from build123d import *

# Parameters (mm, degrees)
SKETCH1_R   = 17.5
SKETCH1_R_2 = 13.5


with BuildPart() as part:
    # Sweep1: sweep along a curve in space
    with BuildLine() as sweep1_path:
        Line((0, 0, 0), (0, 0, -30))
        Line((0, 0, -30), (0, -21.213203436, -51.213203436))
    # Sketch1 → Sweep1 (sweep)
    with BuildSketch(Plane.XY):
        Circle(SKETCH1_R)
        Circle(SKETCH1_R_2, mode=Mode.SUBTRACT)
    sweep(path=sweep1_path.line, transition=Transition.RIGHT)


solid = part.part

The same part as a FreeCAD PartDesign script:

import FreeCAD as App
import Part
import Sketcher

V = App.Vector
Q = App.Units.Quantity

doc = App.newDocument("Part")
body = doc.addObject("PartDesign::Body", "Body")

sketch1 = body.newObject("Sketcher::SketchObject", "Sketch")
sketch1.AttachmentSupport = (doc.getObject("XY_Plane"), [""])
sketch1.MapMode = "FlatFace"
sketch1.addGeometry([
    Part.Circle(V(0, 0, 0), V(0, 0, 1), 18),
    Part.Circle(V(0, 0, 0), V(0, 0, 1), 14),
], False)
sketch1.addConstraint([
    Sketcher.Constraint("Coincident", 0, 3, -1, 1),
    Sketcher.Constraint("Coincident", 1, 3, -1, 1),
    Sketcher.Constraint("Diameter", 0, 35.0),
    Sketcher.Constraint("Diameter", 1, 27.0),
])

sketch2 = body.newObject("Sketcher::SketchObject", "Sketch001")
sketch2.AttachmentSupport = (doc.getObject("YZ_Plane"), [""])
sketch2.MapMode = "FlatFace"
sketch2.addGeometry([
    Part.LineSegment(V(0, 0, 0), V(0, -30, 0)),
    Part.LineSegment(V(0, -30, 0), V(-21, -51, 0)),
], False)
sketch2.addConstraint([
    Sketcher.Constraint("Coincident", 0, 2, 1, 1),
    Sketcher.Constraint("Vertical", 0),
    Sketcher.Constraint("Coincident", 0, 1, -1, 1),
    Sketcher.Constraint("DistanceY", 0, 2, 0, 1, 30.0),
    Sketcher.Constraint("Angle", 1, Q("-135 deg")),
    Sketcher.Constraint("Distance", 1, 30.0),
])
doc.recompute()

additivepipe = body.newObject("PartDesign::AdditivePipe", "AdditivePipe")
additivepipe.Profile = sketch1
additivepipe.Spine = (sketch2, ["Edge1", "Edge2"])
additivepipe.Transition = "Right corner"

doc.recompute()
